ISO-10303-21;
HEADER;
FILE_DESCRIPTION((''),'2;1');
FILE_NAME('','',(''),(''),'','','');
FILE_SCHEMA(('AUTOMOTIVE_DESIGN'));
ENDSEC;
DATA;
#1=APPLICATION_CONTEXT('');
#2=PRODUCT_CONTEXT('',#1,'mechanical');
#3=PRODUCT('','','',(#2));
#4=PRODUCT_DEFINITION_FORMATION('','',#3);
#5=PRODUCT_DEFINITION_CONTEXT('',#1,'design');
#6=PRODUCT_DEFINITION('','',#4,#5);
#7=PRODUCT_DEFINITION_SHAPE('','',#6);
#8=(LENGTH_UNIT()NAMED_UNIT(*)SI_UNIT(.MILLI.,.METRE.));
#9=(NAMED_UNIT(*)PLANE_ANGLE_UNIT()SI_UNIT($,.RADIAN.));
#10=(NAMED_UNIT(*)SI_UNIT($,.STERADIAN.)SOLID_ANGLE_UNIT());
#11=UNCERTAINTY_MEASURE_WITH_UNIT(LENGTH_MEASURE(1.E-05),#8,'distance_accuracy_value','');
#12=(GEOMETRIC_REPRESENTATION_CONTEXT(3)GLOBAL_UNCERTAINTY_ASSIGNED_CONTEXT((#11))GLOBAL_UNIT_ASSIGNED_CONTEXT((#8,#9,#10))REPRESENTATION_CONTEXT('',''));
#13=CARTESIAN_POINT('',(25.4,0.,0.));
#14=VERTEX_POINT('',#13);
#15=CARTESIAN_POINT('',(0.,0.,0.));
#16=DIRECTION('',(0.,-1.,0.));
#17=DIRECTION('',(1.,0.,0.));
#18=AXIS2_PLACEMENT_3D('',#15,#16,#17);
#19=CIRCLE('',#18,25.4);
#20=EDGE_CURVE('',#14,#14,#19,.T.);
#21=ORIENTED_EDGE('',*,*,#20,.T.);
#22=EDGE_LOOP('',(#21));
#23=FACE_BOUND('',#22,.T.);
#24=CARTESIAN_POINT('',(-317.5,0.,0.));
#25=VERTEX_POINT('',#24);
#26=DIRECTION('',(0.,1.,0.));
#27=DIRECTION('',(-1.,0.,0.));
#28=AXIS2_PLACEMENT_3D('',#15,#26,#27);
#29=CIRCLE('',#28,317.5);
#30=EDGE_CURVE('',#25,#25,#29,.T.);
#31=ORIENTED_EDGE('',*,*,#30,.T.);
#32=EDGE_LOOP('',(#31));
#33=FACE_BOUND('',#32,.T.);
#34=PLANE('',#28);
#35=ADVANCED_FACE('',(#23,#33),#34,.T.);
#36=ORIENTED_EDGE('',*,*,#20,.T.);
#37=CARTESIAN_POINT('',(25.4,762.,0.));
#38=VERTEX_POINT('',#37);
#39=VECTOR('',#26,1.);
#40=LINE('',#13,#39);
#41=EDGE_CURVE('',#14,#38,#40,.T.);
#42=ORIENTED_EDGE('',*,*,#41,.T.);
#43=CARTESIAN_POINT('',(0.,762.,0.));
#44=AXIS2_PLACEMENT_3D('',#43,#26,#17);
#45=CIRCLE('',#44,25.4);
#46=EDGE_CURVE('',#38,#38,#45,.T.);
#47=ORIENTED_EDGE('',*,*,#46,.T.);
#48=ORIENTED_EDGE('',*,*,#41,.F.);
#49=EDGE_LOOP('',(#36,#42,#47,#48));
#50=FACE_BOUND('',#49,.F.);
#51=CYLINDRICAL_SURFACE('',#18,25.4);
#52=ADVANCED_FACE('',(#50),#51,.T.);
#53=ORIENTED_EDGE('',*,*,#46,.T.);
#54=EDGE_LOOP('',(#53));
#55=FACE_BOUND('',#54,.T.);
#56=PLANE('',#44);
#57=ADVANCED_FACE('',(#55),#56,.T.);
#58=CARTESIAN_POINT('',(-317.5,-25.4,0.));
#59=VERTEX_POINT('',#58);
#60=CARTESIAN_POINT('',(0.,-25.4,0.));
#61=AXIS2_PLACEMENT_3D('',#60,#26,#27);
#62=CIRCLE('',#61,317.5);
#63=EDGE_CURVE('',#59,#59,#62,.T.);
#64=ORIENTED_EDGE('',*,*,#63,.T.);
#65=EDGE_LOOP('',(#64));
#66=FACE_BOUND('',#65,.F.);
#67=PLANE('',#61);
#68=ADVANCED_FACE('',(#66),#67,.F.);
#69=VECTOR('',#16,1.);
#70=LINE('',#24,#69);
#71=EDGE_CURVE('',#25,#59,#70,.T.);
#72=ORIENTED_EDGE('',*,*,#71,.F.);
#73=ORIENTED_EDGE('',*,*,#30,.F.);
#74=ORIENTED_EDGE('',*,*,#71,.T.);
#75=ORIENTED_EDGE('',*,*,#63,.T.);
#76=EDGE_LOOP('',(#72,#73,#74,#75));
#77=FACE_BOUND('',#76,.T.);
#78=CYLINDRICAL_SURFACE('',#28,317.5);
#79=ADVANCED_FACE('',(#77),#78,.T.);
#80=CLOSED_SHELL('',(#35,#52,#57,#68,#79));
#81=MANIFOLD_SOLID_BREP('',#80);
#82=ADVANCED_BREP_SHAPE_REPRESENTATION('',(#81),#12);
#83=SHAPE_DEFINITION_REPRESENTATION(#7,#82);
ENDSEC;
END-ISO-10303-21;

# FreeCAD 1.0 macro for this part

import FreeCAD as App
import Part
import Sketcher
from FreeCAD import Vector
Q = App.Units.Quantity

doc = App.newDocument("Part")
body = doc.addObject("PartDesign::Body", "Body")

sketch1 = doc.addObject("Sketcher::SketchObject", "Sketch")
body.addObject(sketch1)
sketch1.AttachmentSupport = (doc.XZ_Plane, [""])
sketch1.MapMode = "FlatFace"
sketch1.addGeometry([
    Part.Circle(Vector(0, 0, 0), Vector(0, 0, 1), 317.5),
    Part.Circle(Vector(0, 0, 0), Vector(0, 0, 1), 25.4),
], False)
sketch1.addConstraint([
    Sketcher.Constraint("Coincident", 0, 3, -1, 1),
    Sketcher.Constraint("Coincident", 1, 3, -1, 1),
    Sketcher.Constraint("Diameter", 0, Q("25 in")),
    Sketcher.Constraint("Diameter", 1, Q("2 in")),
])
pad1 = doc.addObject("PartDesign::Pad", "Pad")
body.addObject(pad1)
pad1.Profile = sketch1
pad1.Length = Q("1 in")

sketch2 = doc.addObject("Sketcher::SketchObject", "Sketch001")
body.addObject(sketch2)
sketch2.AttachmentSupport = (doc.XZ_Plane, [""])
sketch2.MapMode = "FlatFace"
sketch2.addGeometry(Part.Circle(Vector(0, 0, 0), Vector(0, 0, 1), 25.4), False)
sketch2.addConstraint([
    Sketcher.Constraint("Coincident", 0, 3, -1, 1),
    Sketcher.Constraint("Diameter", 0, Q("2 in")),
])
pad2 = doc.addObject("PartDesign::Pad", "Pad001")
body.addObject(pad2)
pad2.Profile = sketch2
pad2.Type = "TwoLengths"
pad2.Length = Q("30 in")
pad2.Length2 = Q("1 in")
pad2.Reversed = True

doc.recompute()
